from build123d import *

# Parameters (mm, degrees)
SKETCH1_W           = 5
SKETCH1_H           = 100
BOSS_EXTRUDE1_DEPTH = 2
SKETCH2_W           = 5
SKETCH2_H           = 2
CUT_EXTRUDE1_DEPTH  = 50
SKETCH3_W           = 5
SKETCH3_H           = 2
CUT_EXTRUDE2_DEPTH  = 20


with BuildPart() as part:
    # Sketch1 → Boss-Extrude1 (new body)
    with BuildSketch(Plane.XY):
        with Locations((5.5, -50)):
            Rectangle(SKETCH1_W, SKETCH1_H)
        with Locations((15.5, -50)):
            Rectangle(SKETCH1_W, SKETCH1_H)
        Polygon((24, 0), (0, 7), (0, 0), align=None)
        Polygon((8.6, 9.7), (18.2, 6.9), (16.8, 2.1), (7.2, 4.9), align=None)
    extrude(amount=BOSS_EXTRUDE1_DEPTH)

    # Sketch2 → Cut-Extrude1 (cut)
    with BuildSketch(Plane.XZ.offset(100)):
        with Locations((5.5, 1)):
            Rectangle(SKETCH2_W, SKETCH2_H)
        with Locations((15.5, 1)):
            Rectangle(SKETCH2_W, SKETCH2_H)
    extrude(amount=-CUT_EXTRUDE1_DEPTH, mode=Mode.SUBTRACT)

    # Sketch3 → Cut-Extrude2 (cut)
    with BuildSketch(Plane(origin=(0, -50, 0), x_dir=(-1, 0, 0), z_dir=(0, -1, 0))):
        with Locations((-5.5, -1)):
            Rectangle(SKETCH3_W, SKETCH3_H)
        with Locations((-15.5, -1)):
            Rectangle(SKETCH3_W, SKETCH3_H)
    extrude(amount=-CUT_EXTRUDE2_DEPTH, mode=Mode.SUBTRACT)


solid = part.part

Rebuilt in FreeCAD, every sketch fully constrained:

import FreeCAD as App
import Part
import Sketcher


def add_polygon(sketch, points):
    """Adds a closed chain of lines whose ends are joined by coincident constraints."""
    first, n = sketch.GeometryCount, len(points)
    for a, b in zip(points, points[1:] + points[:1]):
        sketch.addGeometry(Part.LineSegment(App.Vector(*a, 0), App.Vector(*b, 0)), False)
    for i in range(n):
        sketch.addConstraint(Sketcher.Constraint("Coincident", first + i, 2, first + (i + 1) % n, 1))

doc = App.newDocument("Part")
body = doc.addObject("PartDesign::Body", "Body")

# Sketch on XY plane
sketch1 = doc.addObject("Sketcher::SketchObject", "Sketch")
body.addObject(sketch1)
sketch1.AttachmentSupport = (doc.XY_Plane, [""])
sketch1.MapMode = "FlatFace"
add_polygon(sketch1, [(3, 0), (3, -100), (8, -100), (8, 0), (13, 0), (13, -100), (18, -100), (18, 0), (24, 0), (16.8, 2.1), (18.2, 6.9), (8.6, 9.7), (7.2, 4.9), (0, 7), (0, 0)])  # lines 0-14
sketch1.addConstraint(Sketcher.Constraint("Vertical", 0))
sketch1.addConstraint(Sketcher.Constraint("Horizontal", 1))
sketch1.addConstraint(Sketcher.Constraint("Vertical", 2))
sketch1.addConstraint(Sketcher.Constraint("Horizontal", 3))
sketch1.addConstraint(Sketcher.Constraint("Vertical", 4))
sketch1.addConstraint(Sketcher.Constraint("Horizontal", 5))
sketch1.addConstraint(Sketcher.Constraint("Vertical", 6))
sketch1.addConstraint(Sketcher.Constraint("Horizontal", 7))
sketch1.addConstraint(Sketcher.Constraint("Vertical", 13))
sketch1.addConstraint(Sketcher.Constraint("Horizontal", 14))
sketch1.addConstraint(Sketcher.Constraint("Coincident", 13, 2, -1, 1))
sketch1.addConstraint(Sketcher.Constraint("PointOnObject", 2, 2, -1))
sketch1.addConstraint(Sketcher.Constraint("PointOnObject", 6, 2, -1))
sketch1.addConstraint(Sketcher.Constraint("Perpendicular", 8, 9))
sketch1.addConstraint(Sketcher.Constraint("Perpendicular", 9, 10))
sketch1.addConstraint(Sketcher.Constraint("Perpendicular", 10, 11))
sketch1.addConstraint(Sketcher.Constraint("Perpendicular", 11, 12))
sketch1.addConstraint(Sketcher.Constraint("Horizontal", 1, 2, 4, 2))
sketch1.addConstraint(Sketcher.Constraint("Equal", 1, 3))
sketch1.addConstraint(Sketcher.Constraint("Equal", 3, 5))
sketch1.addConstraint(Sketcher.Constraint("Equal", 9, 11))
sketch1.addConstraint(Sketcher.Constraint("Equal", 8, 12))
sketch1.addConstraint(Sketcher.Constraint("DistanceX", 1, 1, 1, 2, 5.0))
sketch1.addConstraint(Sketcher.Constraint("DistanceX", 7, 1, 7, 2, 6.0))
sketch1.addConstraint(Sketcher.Constraint("DistanceX", 14, 1, 14, 2, 3.0))
sketch1.addConstraint(Sketcher.Constraint("DistanceY", 0, 2, 0, 1, 100.0))
sketch1.addConstraint(Sketcher.Constraint("DistanceY", 13, 2, 13, 1, 7.0))
sketch1.addConstraint(Sketcher.Constraint("Distance", 9, 5.0))
sketch1.addConstraint(Sketcher.Constraint("Distance", 10, 10.0))
pad1 = doc.addObject("PartDesign::Pad", "Pad")
body.addObject(pad1)
pad1.Profile = sketch1
pad1.Length = 2

# Sketch on XZ plane
sketch2 = doc.addObject("Sketcher::SketchObject", "Sketch001")
body.addObject(sketch2)
sketch2.AttachmentSupport = (doc.XZ_Plane, [""])
sketch2.MapMode = "FlatFace"
sketch2.AttachmentOffset = App.Placement(App.Vector(0, 0, 100), App.Rotation())
add_polygon(sketch2, [(3, 2), (3, 0), (8, 0), (8, 2)])  # lines 0-3
add_polygon(sketch2, [(13, 2), (13, 0), (18, 0), (18, 2)])  # lines 4-7
sketch2.addConstraint(Sketcher.Constraint("Vertical", 0))
sketch2.addConstraint(Sketcher.Constraint("Horizontal", 1))
sketch2.addConstraint(Sketcher.Constraint("Vertical", 2))
sketch2.addConstraint(Sketcher.Constraint("Horizontal", 3))
sketch2.addConstraint(Sketcher.Constraint("Vertical", 4))
sketch2.addConstraint(Sketcher.Constraint("Horizontal", 5))
sketch2.addConstraint(Sketcher.Constraint("Vertical", 6))
sketch2.addConstraint(Sketcher.Constraint("Horizontal", 7))
sketch2.addConstraint(Sketcher.Constraint("PointOnObject", 0, 2, -1))
sketch2.addConstraint(Sketcher.Constraint("PointOnObject", 4, 2, -1))
sketch2.addConstraint(Sketcher.Constraint("Horizontal", 3, 2, 6, 2))
sketch2.addConstraint(Sketcher.Constraint("Equal", 3, 5))
sketch2.addConstraint(Sketcher.Constraint("DistanceX", 1, 1, 1, 2, 5.0))
sketch2.addConstraint(Sketcher.Constraint("DistanceY", 0, 2, 0, 1, 2.0))
sketch2.addConstraint(Sketcher.Constraint("DistanceX", -1, 1, 0, 2, 3.0))
sketch2.addConstraint(Sketcher.Constraint("DistanceX", -1, 1, 4, 2, 13.0))
pocket1 = doc.addObject("PartDesign::Pocket", "Pocket")
body.addObject(pocket1)
pocket1.Profile = sketch2
pocket1.Length = 50

# Sketch on XZ plane
sketch3 = doc.addObject("Sketcher::SketchObject", "Sketch002")
body.addObject(sketch3)
sketch3.AttachmentSupport = (doc.XZ_Plane, [""])
sketch3.MapMode = "FlatFace"
sketch3.AttachmentOffset = App.Placement(App.Vector(0, 0, 50), App.Rotation())
add_polygon(sketch3, [(8, 0), (8, 2), (3, 2), (3, 0)])  # lines 0-3
add_polygon(sketch3, [(18, 0), (18, 2), (13, 2), (13, 0)])  # lines 4-7
sketch3.addConstraint(Sketcher.Constraint("Vertical", 0))
sketch3.addConstraint(Sketcher.Constraint("Horizontal", 1))
sketch3.addConstraint(Sketcher.Constraint("Vertical", 2))
sketch3.addConstraint(Sketcher.Constraint("Horizontal", 3))
sketch3.addConstraint(Sketcher.Constraint("Vertical", 4))
sketch3.addConstraint(Sketcher.Constraint("Horizontal", 5))
sketch3.addConstraint(Sketcher.Constraint("Vertical", 6))
sketch3.addConstraint(Sketcher.Constraint("Horizontal", 7))
sketch3.addConstraint(Sketcher.Constraint("PointOnObject", 2, 2, -1))
sketch3.addConstraint(Sketcher.Constraint("PointOnObject", 6, 2, -1))
sketch3.addConstraint(Sketcher.Constraint("Horizontal", 1, 2, 4, 2))
sketch3.addConstraint(Sketcher.Constraint("Equal", 3, 5))
sketch3.addConstraint(Sketcher.Constraint("DistanceX", 1, 2, 1, 1, 5.0))
sketch3.addConstraint(Sketcher.Constraint("DistanceY", 0, 1, 0, 2, 2.0))
sketch3.addConstraint(Sketcher.Constraint("DistanceX", -1, 1, 0, 2, 8.0))
sketch3.addConstraint(Sketcher.Constraint("DistanceX", -1, 1, 4, 2, 18.0))
pocket2 = doc.addObject("PartDesign::Pocket", "Pocket001")
body.addObject(pocket2)
pocket2.Profile = sketch3
pocket2.Length = 20

doc.recompute()
